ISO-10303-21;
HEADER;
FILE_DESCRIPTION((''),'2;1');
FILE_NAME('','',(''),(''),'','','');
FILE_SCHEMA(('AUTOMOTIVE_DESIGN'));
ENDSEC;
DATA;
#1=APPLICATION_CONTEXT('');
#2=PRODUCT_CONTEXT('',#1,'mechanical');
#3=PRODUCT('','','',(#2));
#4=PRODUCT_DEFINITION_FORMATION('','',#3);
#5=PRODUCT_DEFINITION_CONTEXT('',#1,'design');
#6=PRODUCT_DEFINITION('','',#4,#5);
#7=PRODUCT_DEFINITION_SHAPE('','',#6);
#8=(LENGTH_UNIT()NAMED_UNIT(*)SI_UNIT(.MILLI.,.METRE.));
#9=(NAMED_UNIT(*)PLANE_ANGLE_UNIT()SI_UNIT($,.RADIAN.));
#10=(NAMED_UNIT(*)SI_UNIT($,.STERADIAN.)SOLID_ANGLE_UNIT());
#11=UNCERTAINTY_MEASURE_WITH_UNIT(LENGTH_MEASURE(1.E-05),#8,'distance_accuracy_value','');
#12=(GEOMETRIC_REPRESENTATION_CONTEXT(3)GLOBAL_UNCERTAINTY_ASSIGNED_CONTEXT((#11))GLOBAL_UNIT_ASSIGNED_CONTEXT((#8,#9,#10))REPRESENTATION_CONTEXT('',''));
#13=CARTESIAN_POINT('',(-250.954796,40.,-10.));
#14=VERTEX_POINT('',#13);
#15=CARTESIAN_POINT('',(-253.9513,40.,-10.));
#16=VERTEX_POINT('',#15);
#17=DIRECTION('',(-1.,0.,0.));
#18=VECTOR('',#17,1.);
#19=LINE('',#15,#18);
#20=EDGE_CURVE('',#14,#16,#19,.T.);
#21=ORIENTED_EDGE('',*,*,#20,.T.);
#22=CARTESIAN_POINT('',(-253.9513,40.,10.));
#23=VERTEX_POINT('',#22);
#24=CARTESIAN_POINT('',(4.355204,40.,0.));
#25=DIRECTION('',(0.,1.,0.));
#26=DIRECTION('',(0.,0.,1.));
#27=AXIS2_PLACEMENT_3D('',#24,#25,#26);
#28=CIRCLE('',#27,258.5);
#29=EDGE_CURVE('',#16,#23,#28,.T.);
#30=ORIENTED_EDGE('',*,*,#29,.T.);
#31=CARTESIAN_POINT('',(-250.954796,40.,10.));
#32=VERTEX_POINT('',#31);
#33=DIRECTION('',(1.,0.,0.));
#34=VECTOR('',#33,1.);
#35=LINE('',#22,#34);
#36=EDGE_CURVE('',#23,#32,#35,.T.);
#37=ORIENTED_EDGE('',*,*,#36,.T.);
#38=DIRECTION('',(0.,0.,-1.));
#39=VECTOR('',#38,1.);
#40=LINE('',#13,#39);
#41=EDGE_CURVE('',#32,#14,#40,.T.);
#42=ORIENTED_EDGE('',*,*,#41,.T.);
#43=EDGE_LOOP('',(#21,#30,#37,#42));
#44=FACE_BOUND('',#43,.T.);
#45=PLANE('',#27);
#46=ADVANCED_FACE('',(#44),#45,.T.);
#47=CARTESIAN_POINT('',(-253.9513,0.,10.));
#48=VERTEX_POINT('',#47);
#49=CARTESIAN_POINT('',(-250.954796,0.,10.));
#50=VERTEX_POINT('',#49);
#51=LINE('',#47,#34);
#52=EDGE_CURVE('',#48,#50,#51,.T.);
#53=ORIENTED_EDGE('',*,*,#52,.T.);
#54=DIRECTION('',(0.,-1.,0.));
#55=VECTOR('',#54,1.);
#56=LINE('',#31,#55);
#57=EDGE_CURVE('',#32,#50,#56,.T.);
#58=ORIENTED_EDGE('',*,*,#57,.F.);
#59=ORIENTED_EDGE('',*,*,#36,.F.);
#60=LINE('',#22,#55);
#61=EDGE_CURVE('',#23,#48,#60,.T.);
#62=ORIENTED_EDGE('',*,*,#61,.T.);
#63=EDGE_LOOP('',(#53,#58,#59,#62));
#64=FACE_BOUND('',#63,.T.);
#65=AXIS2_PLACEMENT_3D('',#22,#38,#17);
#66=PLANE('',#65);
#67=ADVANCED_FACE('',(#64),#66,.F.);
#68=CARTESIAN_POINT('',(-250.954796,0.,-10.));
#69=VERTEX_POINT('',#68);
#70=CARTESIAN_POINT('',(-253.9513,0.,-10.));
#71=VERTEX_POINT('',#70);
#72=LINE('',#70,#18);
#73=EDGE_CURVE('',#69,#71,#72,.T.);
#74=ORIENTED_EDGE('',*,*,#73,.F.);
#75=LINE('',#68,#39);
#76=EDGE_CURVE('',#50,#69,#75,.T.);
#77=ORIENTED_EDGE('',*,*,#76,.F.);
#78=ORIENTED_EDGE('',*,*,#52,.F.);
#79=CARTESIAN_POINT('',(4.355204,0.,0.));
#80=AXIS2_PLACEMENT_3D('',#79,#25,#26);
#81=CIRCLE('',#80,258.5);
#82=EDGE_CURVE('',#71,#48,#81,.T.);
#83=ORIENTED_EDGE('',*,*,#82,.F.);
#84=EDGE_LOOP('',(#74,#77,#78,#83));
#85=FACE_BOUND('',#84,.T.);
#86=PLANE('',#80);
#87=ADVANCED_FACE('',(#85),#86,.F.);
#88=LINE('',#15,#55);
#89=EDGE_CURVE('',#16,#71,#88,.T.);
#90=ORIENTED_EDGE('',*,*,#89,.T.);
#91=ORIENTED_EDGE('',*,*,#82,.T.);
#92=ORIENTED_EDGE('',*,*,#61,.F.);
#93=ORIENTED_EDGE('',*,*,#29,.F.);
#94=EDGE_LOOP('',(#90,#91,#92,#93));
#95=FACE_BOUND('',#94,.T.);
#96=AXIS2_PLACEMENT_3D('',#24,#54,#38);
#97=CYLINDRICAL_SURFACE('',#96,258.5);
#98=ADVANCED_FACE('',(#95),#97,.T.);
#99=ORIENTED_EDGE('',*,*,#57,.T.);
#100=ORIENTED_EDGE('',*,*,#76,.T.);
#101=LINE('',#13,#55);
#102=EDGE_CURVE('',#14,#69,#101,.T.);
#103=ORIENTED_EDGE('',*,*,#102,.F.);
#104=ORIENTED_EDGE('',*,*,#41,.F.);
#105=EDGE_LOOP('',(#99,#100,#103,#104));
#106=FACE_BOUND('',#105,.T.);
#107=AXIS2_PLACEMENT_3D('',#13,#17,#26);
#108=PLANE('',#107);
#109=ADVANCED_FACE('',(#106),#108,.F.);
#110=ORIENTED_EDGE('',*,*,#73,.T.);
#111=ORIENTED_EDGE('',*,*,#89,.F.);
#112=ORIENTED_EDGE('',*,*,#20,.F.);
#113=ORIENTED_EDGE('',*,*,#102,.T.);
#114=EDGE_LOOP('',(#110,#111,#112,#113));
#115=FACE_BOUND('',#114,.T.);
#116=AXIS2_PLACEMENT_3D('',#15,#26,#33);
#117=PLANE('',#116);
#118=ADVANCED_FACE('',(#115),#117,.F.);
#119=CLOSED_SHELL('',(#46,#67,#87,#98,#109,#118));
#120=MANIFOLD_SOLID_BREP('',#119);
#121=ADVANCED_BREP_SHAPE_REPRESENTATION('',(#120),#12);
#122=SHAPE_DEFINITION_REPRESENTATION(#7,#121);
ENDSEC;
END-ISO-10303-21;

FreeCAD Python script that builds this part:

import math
import FreeCAD as App
import Part
import Sketcher

V = App.Vector
Q = App.Units.Quantity

doc = App.newDocument("Part")
params = doc.addObject("Spreadsheet::Sheet", "Params")
for row, (alias, value) in enumerate([
    ("sketch1_radius", "258.5 mm"),
    ("sketch1_height", "20 mm"),
    ("pad1_length", "40 mm"),
], start=1):
    params.set(f"A{row}", alias)
    params.set(f"B{row}", "=" + value)
    params.setAlias(f"B{row}", alias)

body = doc.addObject("PartDesign::Body", "Body")

# Sketch on XZ plane
sketch1 = body.newObject("Sketcher::SketchObject", "Sketch")
sketch1.AttachmentSupport = (doc.getObject("XZ_Plane"), [""])
sketch1.MapMode = "FlatFace"
sketch1.addGeometry(Part.LineSegment(V(-251, -10, 0), V(-254, -10, 0)), False)
sketch1.addGeometry(Part.ArcOfCircle(Part.Circle(V(4.4, 0, 0), V(0, 0, 1), 258.5), math.radians(177.78), math.radians(182.22)), False)
sketch1.addGeometry(Part.LineSegment(V(-254, 10, 0), V(-251, 10, 0)), False)
sketch1.addGeometry(Part.LineSegment(V(-251, 10, 0), V(-251, -10, 0)), False)
sketch1.addConstraint(Sketcher.Constraint("Coincident", 0, 2, 1, 2))
sketch1.addConstraint(Sketcher.Constraint("Coincident", 1, 1, 2, 1))
sketch1.addConstraint(Sketcher.Constraint("Coincident", 2, 2, 3, 1))
sketch1.addConstraint(Sketcher.Constraint("Coincident", 3, 2, 0, 1))
sketch1.addConstraint(Sketcher.Constraint("Horizontal", 0))
sketch1.addConstraint(Sketcher.Constraint("Horizontal", 2))
sketch1.addConstraint(Sketcher.Constraint("Vertical", 3))
sketch1.addConstraint(Sketcher.Constraint("Symmetric", 0, 2, 1, 1, -1))
sketch1.addConstraint(Sketcher.Constraint("Radius", 1, Q("258.5 mm")))
sketch1.addConstraint(Sketcher.Constraint("DistanceY", 3, 2, 3, 1, Q("20 mm")))
sketch1.addConstraint(Sketcher.Constraint("DistanceX", 2, 2, 1, 3, Q("255.31 mm")))
sketch1.addConstraint(Sketcher.Constraint("DistanceX", 0, 2, -1, 1, Q("253.9513 mm")))
sketch1.setExpression("Constraints[8]", "Params.sketch1_radius")
sketch1.setExpression("Constraints[9]", "Params.sketch1_height")
pad1 = body.newObject("PartDesign::Pad", "Pad")
pad1.Profile = sketch1
pad1.setExpression("Length", "Params.pad1_length")
pad1.Reversed = True

doc.recompute()
